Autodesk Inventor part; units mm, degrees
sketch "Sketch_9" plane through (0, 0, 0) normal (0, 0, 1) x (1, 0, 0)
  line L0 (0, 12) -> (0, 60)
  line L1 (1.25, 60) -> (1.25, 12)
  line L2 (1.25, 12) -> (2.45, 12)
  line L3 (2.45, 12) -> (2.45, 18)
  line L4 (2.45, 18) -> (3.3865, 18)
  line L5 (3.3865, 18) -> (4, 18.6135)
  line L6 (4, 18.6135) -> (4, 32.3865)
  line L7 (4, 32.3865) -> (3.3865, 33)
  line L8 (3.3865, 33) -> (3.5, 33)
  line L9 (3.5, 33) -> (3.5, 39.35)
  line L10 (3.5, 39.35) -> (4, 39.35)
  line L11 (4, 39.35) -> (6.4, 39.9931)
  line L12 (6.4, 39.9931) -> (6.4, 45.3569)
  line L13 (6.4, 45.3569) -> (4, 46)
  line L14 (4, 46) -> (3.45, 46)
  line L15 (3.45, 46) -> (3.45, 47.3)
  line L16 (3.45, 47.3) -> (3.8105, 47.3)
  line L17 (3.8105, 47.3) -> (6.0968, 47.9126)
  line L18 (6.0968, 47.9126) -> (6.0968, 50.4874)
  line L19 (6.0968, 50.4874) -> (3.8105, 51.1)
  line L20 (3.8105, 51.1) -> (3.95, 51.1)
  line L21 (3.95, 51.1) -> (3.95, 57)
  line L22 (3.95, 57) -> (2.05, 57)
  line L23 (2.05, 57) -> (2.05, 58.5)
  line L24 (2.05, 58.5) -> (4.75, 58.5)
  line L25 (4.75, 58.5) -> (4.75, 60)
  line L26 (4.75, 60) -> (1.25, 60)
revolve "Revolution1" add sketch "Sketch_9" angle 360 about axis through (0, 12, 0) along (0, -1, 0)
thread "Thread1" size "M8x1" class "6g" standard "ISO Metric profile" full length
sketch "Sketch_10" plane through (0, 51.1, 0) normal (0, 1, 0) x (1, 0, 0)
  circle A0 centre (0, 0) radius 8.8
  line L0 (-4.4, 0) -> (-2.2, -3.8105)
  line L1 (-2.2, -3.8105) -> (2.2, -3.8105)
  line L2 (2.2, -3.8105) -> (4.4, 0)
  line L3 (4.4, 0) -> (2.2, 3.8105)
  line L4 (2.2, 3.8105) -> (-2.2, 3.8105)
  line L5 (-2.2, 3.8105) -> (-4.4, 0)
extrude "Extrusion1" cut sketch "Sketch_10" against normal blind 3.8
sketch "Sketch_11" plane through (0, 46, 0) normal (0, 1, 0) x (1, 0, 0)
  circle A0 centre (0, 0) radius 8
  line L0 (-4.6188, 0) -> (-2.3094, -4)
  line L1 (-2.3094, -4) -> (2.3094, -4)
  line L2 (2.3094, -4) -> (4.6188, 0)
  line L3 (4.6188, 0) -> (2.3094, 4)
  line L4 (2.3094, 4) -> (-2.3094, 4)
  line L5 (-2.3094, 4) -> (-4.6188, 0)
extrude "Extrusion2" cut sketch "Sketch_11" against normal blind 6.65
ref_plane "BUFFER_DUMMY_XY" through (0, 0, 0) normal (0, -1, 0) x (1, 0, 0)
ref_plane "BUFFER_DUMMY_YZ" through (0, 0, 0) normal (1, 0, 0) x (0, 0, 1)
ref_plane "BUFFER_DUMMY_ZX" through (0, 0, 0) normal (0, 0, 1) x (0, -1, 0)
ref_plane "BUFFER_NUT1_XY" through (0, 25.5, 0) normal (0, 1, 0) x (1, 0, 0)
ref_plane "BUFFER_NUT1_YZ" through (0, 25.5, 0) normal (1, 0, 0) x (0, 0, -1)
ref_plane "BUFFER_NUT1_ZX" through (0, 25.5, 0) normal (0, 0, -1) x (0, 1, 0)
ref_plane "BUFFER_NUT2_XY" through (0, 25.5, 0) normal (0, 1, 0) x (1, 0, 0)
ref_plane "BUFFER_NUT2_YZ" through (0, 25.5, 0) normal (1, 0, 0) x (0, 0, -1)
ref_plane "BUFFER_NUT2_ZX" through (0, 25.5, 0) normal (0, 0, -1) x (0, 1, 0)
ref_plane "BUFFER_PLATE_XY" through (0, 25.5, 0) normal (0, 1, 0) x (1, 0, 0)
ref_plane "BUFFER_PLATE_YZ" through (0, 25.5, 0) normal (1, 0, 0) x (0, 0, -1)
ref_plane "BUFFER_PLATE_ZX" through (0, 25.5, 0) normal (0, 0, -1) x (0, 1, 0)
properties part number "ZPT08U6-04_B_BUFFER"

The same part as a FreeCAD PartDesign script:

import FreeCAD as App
import Part
import Sketcher

V = App.Vector
Q = App.Units.Quantity

doc = App.newDocument("Part")
body = doc.addObject("PartDesign::Body", "Body")

# Sketch on XY plane
sketch1 = body.newObject("Sketcher::SketchObject", "Sketch")
sketch1.AttachmentSupport = (doc.getObject("XY_Plane"), [""])
sketch1.MapMode = "FlatFace"
sketch1.addGeometry(Part.LineSegment(V(4.75, 60, 0), V(1.25, 60, 0)), False)
sketch1.addGeometry(Part.LineSegment(V(1.25, 60, 0), V(1.25, 12, 0)), False)
sketch1.addGeometry(Part.LineSegment(V(1.25, 12, 0), V(2.45, 12, 0)), False)
sketch1.addGeometry(Part.LineSegment(V(2.45, 12, 0), V(2.45, 18, 0)), False)
sketch1.addGeometry(Part.LineSegment(V(2.45, 18, 0), V(3.39, 18, 0)), False)
sketch1.addGeometry(Part.LineSegment(V(3.39, 18, 0), V(4, 18.61, 0)), False)
sketch1.addGeometry(Part.LineSegment(V(4, 18.61, 0), V(4, 32.39, 0)), False)
sketch1.addGeometry(Part.LineSegment(V(4, 32.39, 0), V(3.39, 33, 0)), False)
sketch1.addGeometry(Part.LineSegment(V(3.39, 33, 0), V(3.5, 33, 0)), False)
sketch1.addGeometry(Part.LineSegment(V(3.5, 33, 0), V(3.5, 39.35, 0)), False)
sketch1.addGeometry(Part.LineSegment(V(3.5, 39.35, 0), V(4, 39.35, 0)), False)
sketch1.addGeometry(Part.LineSegment(V(4, 39.35, 0), V(6.4, 39.99, 0)), False)
sketch1.addGeometry(Part.LineSegment(V(6.4, 39.99, 0), V(6.4, 45.36, 0)), False)
sketch1.addGeometry(Part.LineSegment(V(6.4, 45.36, 0), V(4, 46, 0)), False)
sketch1.addGeometry(Part.LineSegment(V(4, 46, 0), V(3.45, 46, 0)), False)
sketch1.addGeometry(Part.LineSegment(V(3.45, 46, 0), V(3.45, 47.3, 0)), False)
sketch1.addGeometry(Part.LineSegment(V(3.45, 47.3, 0), V(3.81, 47.3, 0)), False)
sketch1.addGeometry(Part.LineSegment(V(3.81, 47.3, 0), V(6.1, 47.91, 0)), False)
sketch1.addGeometry(Part.LineSegment(V(6.1, 47.91, 0), V(6.1, 50.49, 0)), False)
sketch1.addGeometry(Part.LineSegment(V(6.1, 50.49, 0), V(3.81, 51.1, 0)), False)
sketch1.addGeometry(Part.LineSegment(V(3.81, 51.1, 0), V(3.95, 51.1, 0)), False)
sketch1.addGeometry(Part.LineSegment(V(3.95, 51.1, 0), V(3.95, 57, 0)), False)
sketch1.addGeometry(Part.LineSegment(V(3.95, 57, 0), V(2.05, 57, 0)), False)
sketch1.addGeometry(Part.LineSegment(V(2.05, 57, 0), V(2.05, 58.5, 0)), False)
sketch1.addGeometry(Part.LineSegment(V(2.05, 58.5, 0), V(4.75, 58.5, 0)), False)
sketch1.addGeometry(Part.LineSegment(V(4.75, 58.5, 0), V(4.75, 60, 0)), False)
sketch1.addConstraint(Sketcher.Constraint("Coincident", 0, 2, 1, 1))
sketch1.addConstraint(Sketcher.Constraint("Coincident", 1, 2, 2, 1))
sketch1.addConstraint(Sketcher.Constraint("Coincident", 2, 2, 3, 1))
sketch1.addConstraint(Sketcher.Constraint("Coincident", 3, 2, 4, 1))
sketch1.addConstraint(Sketcher.Constraint("Coincident", 4, 2, 5, 1))
sketch1.addConstraint(Sketcher.Constraint("Coincident", 5, 2, 6, 1))
sketch1.addConstraint(Sketcher.Constraint("Coincident", 6, 2, 7, 1))
sketch1.addConstraint(Sketcher.Constraint("Coincident", 7, 2, 8, 1))
sketch1.addConstraint(Sketcher.Constraint("Coincident", 8, 2, 9, 1))
sketch1.addConstraint(Sketcher.Constraint("Coincident", 9, 2, 10, 1))
sketch1.addConstraint(Sketcher.Constraint("Coincident", 10, 2, 11, 1))
sketch1.addConstraint(Sketcher.Constraint("Coincident", 11, 2, 12, 1))
sketch1.addConstraint(Sketcher.Constraint("Coincident", 12, 2, 13, 1))
sketch1.addConstraint(Sketcher.Constraint("Coincident", 13, 2, 14, 1))
sketch1.addConstraint(Sketcher.Constraint("Coincident", 14, 2, 15, 1))
sketch1.addConstraint(Sketcher.Constraint("Coincident", 15, 2, 16, 1))
sketch1.addConstraint(Sketcher.Constraint("Coincident", 16, 2, 17, 1))
sketch1.addConstraint(Sketcher.Constraint("Coincident", 17, 2, 18, 1))
sketch1.addConstraint(Sketcher.Constraint("Coincident", 18, 2, 19, 1))
sketch1.addConstraint(Sketcher.Constraint("Coincident", 19, 2, 20, 1))
sketch1.addConstraint(Sketcher.Constraint("Coincident", 20, 2, 21, 1))
sketch1.addConstraint(Sketcher.Constraint("Coincident", 21, 2, 22, 1))
sketch1.addConstraint(Sketcher.Constraint("Coincident", 22, 2, 23, 1))
sketch1.addConstraint(Sketcher.Constraint("Coincident", 23, 2, 24, 1))
sketch1.addConstraint(Sketcher.Constraint("Coincident", 24, 2, 25, 1))
sketch1.addConstraint(Sketcher.Constraint("Coincident", 25, 2, 0, 1))
sketch1.addConstraint(Sketcher.Constraint("Horizontal", 0))
sketch1.addConstraint(Sketcher.Constraint("Vertical", 1))
sketch1.addConstraint(Sketcher.Constraint("Horizontal", 2))
sketch1.addConstraint(Sketcher.Constraint("Vertical", 3))
sketch1.addConstraint(Sketcher.Constraint("Horizontal", 4))
sketch1.addConstraint(Sketcher.Constraint("Vertical", 6))
sketch1.addConstraint(Sketcher.Constraint("Horizontal", 8))
sketch1.addConstraint(Sketcher.Constraint("Vertical", 9))
sketch1.addConstraint(Sketcher.Constraint("Horizontal", 10))
sketch1.addConstraint(Sketcher.Constraint("Vertical", 12))
sketch1.addConstraint(Sketcher.Constraint("Horizontal", 14))
sketch1.addConstraint(Sketcher.Constraint("Vertical", 15))
sketch1.addConstraint(Sketcher.Constraint("Horizontal", 16))
sketch1.addConstraint(Sketcher.Constraint("Vertical", 18))
sketch1.addConstraint(Sketcher.Constraint("Horizontal", 20))
sketch1.addConstraint(Sketcher.Constraint("Vertical", 21))
sketch1.addConstraint(Sketcher.Constraint("Horizontal", 22))
sketch1.addConstraint(Sketcher.Constraint("Vertical", 23))
sketch1.addConstraint(Sketcher.Constraint("Horizontal", 24))
sketch1.addConstraint(Sketcher.Constraint("Vertical", 25))
sketch1.addConstraint(Sketcher.Constraint("Perpendicular", 5, 7))
sketch1.addConstraint(Sketcher.Constraint("Parallel", 11, 17))
sketch1.addConstraint(Sketcher.Constraint("Parallel", 13, 19))
sketch1.addConstraint(Sketcher.Constraint("Vertical", 4, 2, 7, 2))
sketch1.addConstraint(Sketcher.Constraint("Vertical", 6, 2, 10, 2))
sketch1.addConstraint(Sketcher.Constraint("Vertical", 10, 2, 13, 2))
sketch1.addConstraint(Sketcher.Constraint("Vertical", 16, 2, 19, 2))
sketch1.addConstraint(Sketcher.Constraint("Equal", 23, 25))
sketch1.addConstraint(Sketcher.Constraint("Equal", 5, 7))
sketch1.addConstraint(Sketcher.Constraint("Equal", 11, 13))
sketch1.addConstraint(Sketcher.Constraint("DistanceY", 1, 2, 1, 1, 48.0))
sketch1.addConstraint(Sketcher.Constraint("DistanceY", 3, 1, 3, 2, 6.0))
sketch1.addConstraint(Sketcher.Constraint("Angle", 11, Q("15.0005 deg")))
sketch1.addConstraint(Sketcher.Constraint("DistanceX", 0, 2, 0, 1, 3.5))
sketch1.addConstraint(Sketcher.Constraint("DistanceX", 2, 1, 2, 2, 1.2))
sketch1.addConstraint(Sketcher.Constraint("DistanceX", 10, 1, 10, 2, 0.5))
sketch1.addConstraint(Sketcher.Constraint("DistanceX", 22, 2, 22, 1, 1.9))
sketch1.addConstraint(Sketcher.Constraint("DistanceX", 24, 1, 24, 2, 2.7))
sketch1.addConstraint(Sketcher.Constraint("DistanceY", 15, 1, 15, 2, 1.3))
sketch1.addConstraint(Sketcher.Constraint("DistanceY", 21, 1, 21, 2, 5.9))
sketch1.addConstraint(Sketcher.Constraint("DistanceY", 23, 1, 23, 2, 1.5))
sketch1.addConstraint(Sketcher.Constraint("DistanceY", -1, 1, 0, 2, 60.0))
sketch1.addConstraint(Sketcher.Constraint("DistanceX", -1, 1, 5, 2, 4.0))
sketch1.addConstraint(Sketcher.Constraint("DistanceY", -1, 1, 7, 2, 33.0))
sketch1.addConstraint(Sketcher.Constraint("DistanceY", -1, 1, 13, 2, 46.0))
sketch1.addConstraint(Sketcher.Constraint("DistanceX", 14, 2, 14, 1, 0.55))
sketch1.addConstraint(Sketcher.Constraint("DistanceY", 9, 1, 9, 2, 6.35))
sketch1.addConstraint(Sketcher.Constraint("DistanceX", -1, 1, 11, 2, 6.4))
sketch1.addConstraint(Sketcher.Constraint("DistanceX", 15, 2, 20, 2, 0.5))
sketch1.addConstraint(Sketcher.Constraint("DistanceY", 6, 1, 6, 2, 13.773))
sketch1.addConstraint(Sketcher.Constraint("Distance", 17, 2.367))
sketch1.addConstraint(Sketcher.Constraint("DistanceX", 16, 1, 16, 2, 0.3605))
revolution = body.newObject("PartDesign::Revolution", "Revolution")
revolution.Profile = sketch1
revolution.ReferenceAxis = (sketch1, ["V_Axis"])
revolution.Angle = 360

# Sketch on XZ plane
sketch2 = body.newObject("Sketcher::SketchObject", "Sketch001")
sketch2.AttachmentSupport = (doc.getObject("XZ_Plane"), [""])
sketch2.MapMode = "FlatFace"
sketch2.AttachmentOffset = App.Placement(V(0, 0, -51.1), App.Rotation())
sketch2.addGeometry(Part.Circle(V(0, 0, 0), V(0, 0, 1), 8.8), False)
sketch2.addGeometry(Part.LineSegment(V(-2.2, 3.8, 0), V(-4.4, 0, 0)), False)
sketch2.addGeometry(Part.LineSegment(V(-4.4, 0, 0), V(-2.2, -3.8, 0)), False)
sketch2.addGeometry(Part.LineSegment(V(-2.2, -3.8, 0), V(2.2, -3.8, 0)), False)
sketch2.addGeometry(Part.LineSegment(V(2.2, -3.8, 0), V(4.4, 0, 0)), False)
sketch2.addGeometry(Part.LineSegment(V(4.4, 0, 0), V(2.2, 3.8, 0)), False)
sketch2.addGeometry(Part.LineSegment(V(2.2, 3.8, 0), V(-2.2, 3.8, 0)), False)
sketch2.addConstraint(Sketcher.Constraint("Coincident", 1, 2, 2, 1))
sketch2.addConstraint(Sketcher.Constraint("Coincident", 2, 2, 3, 1))
sketch2.addConstraint(Sketcher.Constraint("Coincident", 3, 2, 4, 1))
sketch2.addConstraint(Sketcher.Constraint("Coincident", 4, 2, 5, 1))
sketch2.addConstraint(Sketcher.Constraint("Coincident", 5, 2, 6, 1))
sketch2.addConstraint(Sketcher.Constraint("Coincident", 6, 2, 1, 1))
sketch2.addConstraint(Sketcher.Constraint("Horizontal", 3))
sketch2.addConstraint(Sketcher.Constraint("Horizontal", 6))
sketch2.addConstraint(Sketcher.Constraint("Coincident", 0, 3, -1, 1))
sketch2.addConstraint(Sketcher.Constraint("Symmetric", 1, 2, 4, 2, -1, 1))
sketch2.addConstraint(Sketcher.Constraint("Symmetric", 2, 2, 5, 2, -1, 1))
sketch2.addConstraint(Sketcher.Constraint("PointOnObject", 1, 2, -1))
sketch2.addConstraint(Sketcher.Constraint("Parallel", 1, 4))
sketch2.addConstraint(Sketcher.Constraint("Vertical", 3, 2, 5, 2))
sketch2.addConstraint(Sketcher.Constraint("Diameter", 0, 17.6))
sketch2.addConstraint(Sketcher.Constraint("Angle", 1, Q("-120 deg")))
sketch2.addConstraint(Sketcher.Constraint("DistanceX", 3, 1, 3, 2, 4.4))
sketch2.addConstraint(Sketcher.Constraint("Distance", 1, 4.4))
pocket1 = body.newObject("PartDesign::Pocket", "Pocket")
pocket1.Profile = sketch2
pocket1.Length = 3.8
pocket1.Reversed = True

# Sketch on XZ plane
sketch3 = body.newObject("Sketcher::SketchObject", "Sketch002")
sketch3.AttachmentSupport = (doc.getObject("XZ_Plane"), [""])
sketch3.MapMode = "FlatFace"
sketch3.AttachmentOffset = App.Placement(V(0, 0, -46), App.Rotation())
sketch3.addGeometry(Part.Circle(V(0, 0, 0), V(0, 0, 1), 8), False)
sketch3.addGeometry(Part.LineSegment(V(-2.3, 4, 0), V(-4.6, 0, 0)), False)
sketch3.addGeometry(Part.LineSegment(V(-4.6, 0, 0), V(-2.3, -4, 0)), False)
sketch3.addGeometry(Part.LineSegment(V(-2.3, -4, 0), V(2.3, -4, 0)), False)
sketch3.addGeometry(Part.LineSegment(V(2.3, -4, 0), V(4.6, 0, 0)), False)
sketch3.addGeometry(Part.LineSegment(V(4.6, 0, 0), V(2.3, 4, 0)), False)
sketch3.addGeometry(Part.LineSegment(V(2.3, 4, 0), V(-2.3, 4, 0)), False)
sketch3.addConstraint(Sketcher.Constraint("Coincident", 1, 2, 2, 1))
sketch3.addConstraint(Sketcher.Constraint("Coincident", 2, 2, 3, 1))
sketch3.addConstraint(Sketcher.Constraint("Coincident", 3, 2, 4, 1))
sketch3.addConstraint(Sketcher.Constraint("Coincident", 4, 2, 5, 1))
sketch3.addConstraint(Sketcher.Constraint("Coincident", 5, 2, 6, 1))
sketch3.addConstraint(Sketcher.Constraint("Coincident", 6, 2, 1, 1))
sketch3.addConstraint(Sketcher.Constraint("Horizontal", 3))
sketch3.addConstraint(Sketcher.Constraint("Horizontal", 6))
sketch3.addConstraint(Sketcher.Constraint("Coincident", 0, 3, -1, 1))
sketch3.addConstraint(Sketcher.Constraint("Symmetric", 1, 2, 4, 2, -1, 1))
sketch3.addConstraint(Sketcher.Constraint("Symmetric", 2, 2, 5, 2, -1, 1))
sketch3.addConstraint(Sketcher.Constraint("PointOnObject", 1, 2, -1))
sketch3.addConstraint(Sketcher.Constraint("Parallel", 1, 4))
sketch3.addConstraint(Sketcher.Constraint("Vertical", 3, 2, 5, 2))
sketch3.addConstraint(Sketcher.Constraint("Diameter", 0, 16.0))
sketch3.addConstraint(Sketcher.Constraint("Angle", 1, Q("-120 deg")))
sketch3.addConstraint(Sketcher.Constraint("DistanceY", 2, 2, -1, 1, 4.0))
sketch3.addConstraint(Sketcher.Constraint("DistanceX", 3, 1, 3, 2, 4.6188))
pocket2 = body.newObject("PartDesign::Pocket", "Pocket001")
pocket2.Profile = sketch3
pocket2.Length = 6.65
pocket2.Reversed = True

doc.recompute()
